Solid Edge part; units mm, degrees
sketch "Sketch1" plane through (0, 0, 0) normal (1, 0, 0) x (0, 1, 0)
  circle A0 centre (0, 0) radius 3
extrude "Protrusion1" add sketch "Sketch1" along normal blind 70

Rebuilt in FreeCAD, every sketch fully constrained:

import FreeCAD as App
import Part
import Sketcher
Q = App.Units.Quantity

doc = App.newDocument("Part")
params = doc.addObject("Spreadsheet::Sheet", "Params")
for row, (alias, value) in enumerate([
    ("sketch1_diameter", "6 mm"),
    ("pad1_length", "70 mm"),
], start=1):
    params.set(f"A{row}", alias)
    params.set(f"B{row}", "=" + value)
    params.setAlias(f"B{row}", alias)

body = doc.addObject("PartDesign::Body", "Body")

sketch1 = doc.addObject("Sketcher::SketchObject", "Sketch")
body.addObject(sketch1)
sketch1.AttachmentSupport = (doc.YZ_Plane, [""])
sketch1.MapMode = "FlatFace"
sketch1.addGeometry(Part.Circle(App.Vector(0, 0, 0), App.Vector(0, 0, 1), 3), False)
sketch1.addConstraint([
    Sketcher.Constraint("Coincident", 0, 3, -1, 1),
    Sketcher.Constraint("Diameter", 0, Q("6 mm")),
])
sketch1.setExpression("Constraints[1]", "Params.sketch1_diameter")
pad1 = doc.addObject("PartDesign::Pad", "Pad")
body.addObject(pad1)
pad1.Profile = sketch1
pad1.setExpression("Length", "Params.pad1_length")

doc.recompute()
